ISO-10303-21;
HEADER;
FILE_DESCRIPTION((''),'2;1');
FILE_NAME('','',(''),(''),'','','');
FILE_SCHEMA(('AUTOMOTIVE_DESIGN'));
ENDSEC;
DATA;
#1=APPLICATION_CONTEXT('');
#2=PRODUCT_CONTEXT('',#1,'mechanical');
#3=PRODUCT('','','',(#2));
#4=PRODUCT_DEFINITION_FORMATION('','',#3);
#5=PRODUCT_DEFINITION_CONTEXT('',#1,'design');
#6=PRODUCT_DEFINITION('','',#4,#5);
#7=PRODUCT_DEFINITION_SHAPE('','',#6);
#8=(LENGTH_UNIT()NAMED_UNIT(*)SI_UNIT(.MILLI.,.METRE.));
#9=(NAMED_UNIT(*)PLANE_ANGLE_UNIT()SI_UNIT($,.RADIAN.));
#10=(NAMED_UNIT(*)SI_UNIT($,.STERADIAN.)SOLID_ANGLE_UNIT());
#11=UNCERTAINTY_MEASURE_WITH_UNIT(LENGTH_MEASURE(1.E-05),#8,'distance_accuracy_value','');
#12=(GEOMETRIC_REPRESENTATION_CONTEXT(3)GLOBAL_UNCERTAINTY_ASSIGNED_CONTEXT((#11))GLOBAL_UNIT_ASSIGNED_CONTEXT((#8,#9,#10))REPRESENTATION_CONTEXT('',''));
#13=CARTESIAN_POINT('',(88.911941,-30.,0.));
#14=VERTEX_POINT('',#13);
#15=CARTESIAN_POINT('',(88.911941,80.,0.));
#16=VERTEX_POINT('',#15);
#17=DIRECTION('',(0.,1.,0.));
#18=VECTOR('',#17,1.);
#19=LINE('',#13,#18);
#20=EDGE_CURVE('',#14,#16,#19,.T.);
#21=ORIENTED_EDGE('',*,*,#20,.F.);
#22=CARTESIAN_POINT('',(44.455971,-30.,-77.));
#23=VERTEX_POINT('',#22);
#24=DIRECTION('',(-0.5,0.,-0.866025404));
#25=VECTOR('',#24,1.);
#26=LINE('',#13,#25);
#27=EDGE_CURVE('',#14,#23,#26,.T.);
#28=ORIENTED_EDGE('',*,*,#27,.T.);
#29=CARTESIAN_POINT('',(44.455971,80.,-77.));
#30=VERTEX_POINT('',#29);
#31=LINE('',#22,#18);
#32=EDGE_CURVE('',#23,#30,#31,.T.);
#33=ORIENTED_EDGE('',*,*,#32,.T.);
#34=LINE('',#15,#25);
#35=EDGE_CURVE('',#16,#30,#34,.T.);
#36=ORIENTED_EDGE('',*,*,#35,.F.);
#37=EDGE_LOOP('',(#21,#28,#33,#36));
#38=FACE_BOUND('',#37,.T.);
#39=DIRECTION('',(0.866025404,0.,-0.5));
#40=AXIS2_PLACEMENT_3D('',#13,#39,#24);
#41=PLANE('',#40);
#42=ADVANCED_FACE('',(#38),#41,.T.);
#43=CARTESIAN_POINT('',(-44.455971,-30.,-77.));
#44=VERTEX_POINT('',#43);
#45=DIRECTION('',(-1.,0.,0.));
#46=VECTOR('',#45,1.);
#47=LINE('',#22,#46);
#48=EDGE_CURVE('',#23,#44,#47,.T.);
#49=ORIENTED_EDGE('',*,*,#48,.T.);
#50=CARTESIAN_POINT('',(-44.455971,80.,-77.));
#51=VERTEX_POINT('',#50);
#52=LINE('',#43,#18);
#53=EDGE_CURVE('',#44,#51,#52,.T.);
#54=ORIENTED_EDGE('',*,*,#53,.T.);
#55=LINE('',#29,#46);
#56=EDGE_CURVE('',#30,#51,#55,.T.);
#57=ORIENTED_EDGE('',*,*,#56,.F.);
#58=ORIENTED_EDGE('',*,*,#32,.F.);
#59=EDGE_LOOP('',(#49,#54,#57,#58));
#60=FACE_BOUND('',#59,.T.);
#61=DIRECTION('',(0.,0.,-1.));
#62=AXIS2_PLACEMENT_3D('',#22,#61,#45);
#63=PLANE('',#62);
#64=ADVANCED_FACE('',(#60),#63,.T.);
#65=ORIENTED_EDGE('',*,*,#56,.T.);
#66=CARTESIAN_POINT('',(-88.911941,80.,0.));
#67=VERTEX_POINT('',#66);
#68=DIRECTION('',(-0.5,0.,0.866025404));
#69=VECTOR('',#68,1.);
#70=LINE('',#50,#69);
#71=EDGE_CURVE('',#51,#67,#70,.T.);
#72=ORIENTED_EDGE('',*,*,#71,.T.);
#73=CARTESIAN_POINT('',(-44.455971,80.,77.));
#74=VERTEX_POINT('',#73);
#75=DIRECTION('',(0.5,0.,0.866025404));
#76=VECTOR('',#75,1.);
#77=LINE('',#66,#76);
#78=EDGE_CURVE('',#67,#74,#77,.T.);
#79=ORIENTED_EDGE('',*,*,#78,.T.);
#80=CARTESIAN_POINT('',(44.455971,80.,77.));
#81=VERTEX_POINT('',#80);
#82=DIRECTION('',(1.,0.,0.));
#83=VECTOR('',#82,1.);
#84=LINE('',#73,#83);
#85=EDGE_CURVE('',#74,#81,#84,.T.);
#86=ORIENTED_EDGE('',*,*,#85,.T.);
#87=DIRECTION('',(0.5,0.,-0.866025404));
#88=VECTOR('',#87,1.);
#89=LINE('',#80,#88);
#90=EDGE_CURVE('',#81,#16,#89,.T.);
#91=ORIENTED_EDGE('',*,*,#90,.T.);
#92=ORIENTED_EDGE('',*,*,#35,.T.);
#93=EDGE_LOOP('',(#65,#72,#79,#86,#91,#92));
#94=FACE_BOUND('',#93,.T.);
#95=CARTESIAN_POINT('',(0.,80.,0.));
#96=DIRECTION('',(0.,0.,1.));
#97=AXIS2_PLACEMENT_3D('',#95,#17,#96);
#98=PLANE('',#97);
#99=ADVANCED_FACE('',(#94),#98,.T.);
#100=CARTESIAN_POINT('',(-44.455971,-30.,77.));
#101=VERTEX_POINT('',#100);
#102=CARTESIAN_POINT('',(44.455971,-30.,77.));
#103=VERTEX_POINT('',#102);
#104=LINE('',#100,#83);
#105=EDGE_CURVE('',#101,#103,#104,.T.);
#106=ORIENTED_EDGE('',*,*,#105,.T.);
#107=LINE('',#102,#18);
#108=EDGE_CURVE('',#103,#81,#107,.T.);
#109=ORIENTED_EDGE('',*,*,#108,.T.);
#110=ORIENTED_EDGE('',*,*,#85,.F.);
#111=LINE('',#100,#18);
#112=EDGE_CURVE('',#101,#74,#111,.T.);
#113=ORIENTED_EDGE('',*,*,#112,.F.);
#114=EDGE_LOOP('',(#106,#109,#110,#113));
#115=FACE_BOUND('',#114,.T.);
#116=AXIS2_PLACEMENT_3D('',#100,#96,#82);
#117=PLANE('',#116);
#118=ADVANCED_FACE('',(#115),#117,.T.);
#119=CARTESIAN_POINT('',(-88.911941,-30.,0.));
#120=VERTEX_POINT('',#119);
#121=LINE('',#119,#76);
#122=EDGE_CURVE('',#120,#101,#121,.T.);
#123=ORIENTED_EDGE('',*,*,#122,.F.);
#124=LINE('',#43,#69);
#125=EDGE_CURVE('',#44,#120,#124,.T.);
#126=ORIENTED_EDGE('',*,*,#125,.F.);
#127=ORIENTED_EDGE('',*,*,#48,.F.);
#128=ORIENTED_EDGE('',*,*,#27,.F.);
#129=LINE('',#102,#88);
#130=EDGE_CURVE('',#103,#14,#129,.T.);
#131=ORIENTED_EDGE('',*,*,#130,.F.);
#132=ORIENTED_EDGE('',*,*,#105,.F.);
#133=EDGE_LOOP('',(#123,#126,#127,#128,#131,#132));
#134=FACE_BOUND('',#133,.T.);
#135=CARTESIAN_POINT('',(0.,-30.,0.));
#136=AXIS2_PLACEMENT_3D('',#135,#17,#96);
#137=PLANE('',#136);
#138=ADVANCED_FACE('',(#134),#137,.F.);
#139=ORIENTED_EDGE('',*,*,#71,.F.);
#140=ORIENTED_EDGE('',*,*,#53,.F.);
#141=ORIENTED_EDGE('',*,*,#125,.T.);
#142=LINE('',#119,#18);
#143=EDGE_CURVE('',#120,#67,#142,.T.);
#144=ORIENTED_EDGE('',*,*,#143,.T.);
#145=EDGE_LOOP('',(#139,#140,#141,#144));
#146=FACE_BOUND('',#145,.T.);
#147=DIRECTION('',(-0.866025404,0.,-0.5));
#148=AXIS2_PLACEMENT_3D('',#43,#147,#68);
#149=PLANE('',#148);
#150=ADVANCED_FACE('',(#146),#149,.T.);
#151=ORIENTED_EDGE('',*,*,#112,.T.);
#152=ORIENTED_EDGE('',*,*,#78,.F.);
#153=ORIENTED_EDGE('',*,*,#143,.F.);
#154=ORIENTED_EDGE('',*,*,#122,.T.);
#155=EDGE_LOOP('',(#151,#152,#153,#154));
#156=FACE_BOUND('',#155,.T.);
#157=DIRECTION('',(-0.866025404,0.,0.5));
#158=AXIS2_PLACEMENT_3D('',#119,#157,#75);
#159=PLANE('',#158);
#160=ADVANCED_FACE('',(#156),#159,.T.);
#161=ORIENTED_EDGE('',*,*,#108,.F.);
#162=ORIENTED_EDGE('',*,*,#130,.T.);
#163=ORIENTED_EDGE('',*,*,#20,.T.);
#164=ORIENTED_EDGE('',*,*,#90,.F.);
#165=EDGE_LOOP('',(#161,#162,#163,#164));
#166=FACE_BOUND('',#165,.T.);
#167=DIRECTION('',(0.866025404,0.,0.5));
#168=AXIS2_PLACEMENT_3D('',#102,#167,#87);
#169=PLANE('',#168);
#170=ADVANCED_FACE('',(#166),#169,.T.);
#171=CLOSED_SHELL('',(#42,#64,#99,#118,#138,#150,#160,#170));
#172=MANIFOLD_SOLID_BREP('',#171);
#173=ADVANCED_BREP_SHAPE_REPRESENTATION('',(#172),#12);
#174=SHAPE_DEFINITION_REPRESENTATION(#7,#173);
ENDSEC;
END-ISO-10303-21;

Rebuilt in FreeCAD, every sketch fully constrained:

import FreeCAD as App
import Part
import Sketcher

V = App.Vector
Q = App.Units.Quantity

doc = App.newDocument("Part")
body = doc.addObject("PartDesign::Body", "Body")

# Sketch on XZ plane
sketch1 = body.newObject("Sketcher::SketchObject", "Sketch")
sketch1.AttachmentSupport = (doc.getObject("XZ_Plane"), [""])
sketch1.MapMode = "FlatFace"
sketch1.addGeometry([
    Part.LineSegment(V(89, 0, 0), V(44, -77, 0)),  # 0
    Part.LineSegment(V(44, -77, 0), V(-44, -77, 0)),  # 1
    Part.LineSegment(V(-44, -77, 0), V(-89, 0, 0)),  # 2
    Part.LineSegment(V(-89, 0, 0), V(-44, 77, 0)),  # 3
    Part.LineSegment(V(-44, 77, 0), V(44, 77, 0)),  # 4
    Part.LineSegment(V(44, 77, 0), V(89, 0, 0)),  # 5
], False)
sketch1.addConstraint([
    Sketcher.Constraint("Coincident", 0, 2, 1, 1),
    Sketcher.Constraint("Coincident", 1, 2, 2, 1),
    Sketcher.Constraint("Coincident", 2, 2, 3, 1),
    Sketcher.Constraint("Coincident", 3, 2, 4, 1),
    Sketcher.Constraint("Coincident", 4, 2, 5, 1),
    Sketcher.Constraint("Coincident", 5, 2, 0, 1),
    Sketcher.Constraint("Horizontal", 1),
    Sketcher.Constraint("Horizontal", 4),
    Sketcher.Constraint("Symmetric", 0, 2, 3, 2, -1, 1),
    Sketcher.Constraint("Symmetric", 2, 2, 5, 2, -1, 1),
    Sketcher.Constraint("PointOnObject", 2, 2, -1),
    Sketcher.Constraint("Parallel", 2, 5),
    Sketcher.Constraint("Vertical", 1, 2, 3, 2),
    Sketcher.Constraint("Angle", 0, Q("-120 deg")),
    Sketcher.Constraint("DistanceY", 0, 2, -1, 1, 77.0),
    Sketcher.Constraint("DistanceX", 1, 2, 1, 1, 88.911941),
])
pad1 = body.newObject("PartDesign::Pad", "Pad")
pad1.Profile = sketch1
pad1.Type = "TwoLengths"
pad1.Length = 80
pad1.Length2 = 30
pad1.Reversed = True

doc.recompute()
